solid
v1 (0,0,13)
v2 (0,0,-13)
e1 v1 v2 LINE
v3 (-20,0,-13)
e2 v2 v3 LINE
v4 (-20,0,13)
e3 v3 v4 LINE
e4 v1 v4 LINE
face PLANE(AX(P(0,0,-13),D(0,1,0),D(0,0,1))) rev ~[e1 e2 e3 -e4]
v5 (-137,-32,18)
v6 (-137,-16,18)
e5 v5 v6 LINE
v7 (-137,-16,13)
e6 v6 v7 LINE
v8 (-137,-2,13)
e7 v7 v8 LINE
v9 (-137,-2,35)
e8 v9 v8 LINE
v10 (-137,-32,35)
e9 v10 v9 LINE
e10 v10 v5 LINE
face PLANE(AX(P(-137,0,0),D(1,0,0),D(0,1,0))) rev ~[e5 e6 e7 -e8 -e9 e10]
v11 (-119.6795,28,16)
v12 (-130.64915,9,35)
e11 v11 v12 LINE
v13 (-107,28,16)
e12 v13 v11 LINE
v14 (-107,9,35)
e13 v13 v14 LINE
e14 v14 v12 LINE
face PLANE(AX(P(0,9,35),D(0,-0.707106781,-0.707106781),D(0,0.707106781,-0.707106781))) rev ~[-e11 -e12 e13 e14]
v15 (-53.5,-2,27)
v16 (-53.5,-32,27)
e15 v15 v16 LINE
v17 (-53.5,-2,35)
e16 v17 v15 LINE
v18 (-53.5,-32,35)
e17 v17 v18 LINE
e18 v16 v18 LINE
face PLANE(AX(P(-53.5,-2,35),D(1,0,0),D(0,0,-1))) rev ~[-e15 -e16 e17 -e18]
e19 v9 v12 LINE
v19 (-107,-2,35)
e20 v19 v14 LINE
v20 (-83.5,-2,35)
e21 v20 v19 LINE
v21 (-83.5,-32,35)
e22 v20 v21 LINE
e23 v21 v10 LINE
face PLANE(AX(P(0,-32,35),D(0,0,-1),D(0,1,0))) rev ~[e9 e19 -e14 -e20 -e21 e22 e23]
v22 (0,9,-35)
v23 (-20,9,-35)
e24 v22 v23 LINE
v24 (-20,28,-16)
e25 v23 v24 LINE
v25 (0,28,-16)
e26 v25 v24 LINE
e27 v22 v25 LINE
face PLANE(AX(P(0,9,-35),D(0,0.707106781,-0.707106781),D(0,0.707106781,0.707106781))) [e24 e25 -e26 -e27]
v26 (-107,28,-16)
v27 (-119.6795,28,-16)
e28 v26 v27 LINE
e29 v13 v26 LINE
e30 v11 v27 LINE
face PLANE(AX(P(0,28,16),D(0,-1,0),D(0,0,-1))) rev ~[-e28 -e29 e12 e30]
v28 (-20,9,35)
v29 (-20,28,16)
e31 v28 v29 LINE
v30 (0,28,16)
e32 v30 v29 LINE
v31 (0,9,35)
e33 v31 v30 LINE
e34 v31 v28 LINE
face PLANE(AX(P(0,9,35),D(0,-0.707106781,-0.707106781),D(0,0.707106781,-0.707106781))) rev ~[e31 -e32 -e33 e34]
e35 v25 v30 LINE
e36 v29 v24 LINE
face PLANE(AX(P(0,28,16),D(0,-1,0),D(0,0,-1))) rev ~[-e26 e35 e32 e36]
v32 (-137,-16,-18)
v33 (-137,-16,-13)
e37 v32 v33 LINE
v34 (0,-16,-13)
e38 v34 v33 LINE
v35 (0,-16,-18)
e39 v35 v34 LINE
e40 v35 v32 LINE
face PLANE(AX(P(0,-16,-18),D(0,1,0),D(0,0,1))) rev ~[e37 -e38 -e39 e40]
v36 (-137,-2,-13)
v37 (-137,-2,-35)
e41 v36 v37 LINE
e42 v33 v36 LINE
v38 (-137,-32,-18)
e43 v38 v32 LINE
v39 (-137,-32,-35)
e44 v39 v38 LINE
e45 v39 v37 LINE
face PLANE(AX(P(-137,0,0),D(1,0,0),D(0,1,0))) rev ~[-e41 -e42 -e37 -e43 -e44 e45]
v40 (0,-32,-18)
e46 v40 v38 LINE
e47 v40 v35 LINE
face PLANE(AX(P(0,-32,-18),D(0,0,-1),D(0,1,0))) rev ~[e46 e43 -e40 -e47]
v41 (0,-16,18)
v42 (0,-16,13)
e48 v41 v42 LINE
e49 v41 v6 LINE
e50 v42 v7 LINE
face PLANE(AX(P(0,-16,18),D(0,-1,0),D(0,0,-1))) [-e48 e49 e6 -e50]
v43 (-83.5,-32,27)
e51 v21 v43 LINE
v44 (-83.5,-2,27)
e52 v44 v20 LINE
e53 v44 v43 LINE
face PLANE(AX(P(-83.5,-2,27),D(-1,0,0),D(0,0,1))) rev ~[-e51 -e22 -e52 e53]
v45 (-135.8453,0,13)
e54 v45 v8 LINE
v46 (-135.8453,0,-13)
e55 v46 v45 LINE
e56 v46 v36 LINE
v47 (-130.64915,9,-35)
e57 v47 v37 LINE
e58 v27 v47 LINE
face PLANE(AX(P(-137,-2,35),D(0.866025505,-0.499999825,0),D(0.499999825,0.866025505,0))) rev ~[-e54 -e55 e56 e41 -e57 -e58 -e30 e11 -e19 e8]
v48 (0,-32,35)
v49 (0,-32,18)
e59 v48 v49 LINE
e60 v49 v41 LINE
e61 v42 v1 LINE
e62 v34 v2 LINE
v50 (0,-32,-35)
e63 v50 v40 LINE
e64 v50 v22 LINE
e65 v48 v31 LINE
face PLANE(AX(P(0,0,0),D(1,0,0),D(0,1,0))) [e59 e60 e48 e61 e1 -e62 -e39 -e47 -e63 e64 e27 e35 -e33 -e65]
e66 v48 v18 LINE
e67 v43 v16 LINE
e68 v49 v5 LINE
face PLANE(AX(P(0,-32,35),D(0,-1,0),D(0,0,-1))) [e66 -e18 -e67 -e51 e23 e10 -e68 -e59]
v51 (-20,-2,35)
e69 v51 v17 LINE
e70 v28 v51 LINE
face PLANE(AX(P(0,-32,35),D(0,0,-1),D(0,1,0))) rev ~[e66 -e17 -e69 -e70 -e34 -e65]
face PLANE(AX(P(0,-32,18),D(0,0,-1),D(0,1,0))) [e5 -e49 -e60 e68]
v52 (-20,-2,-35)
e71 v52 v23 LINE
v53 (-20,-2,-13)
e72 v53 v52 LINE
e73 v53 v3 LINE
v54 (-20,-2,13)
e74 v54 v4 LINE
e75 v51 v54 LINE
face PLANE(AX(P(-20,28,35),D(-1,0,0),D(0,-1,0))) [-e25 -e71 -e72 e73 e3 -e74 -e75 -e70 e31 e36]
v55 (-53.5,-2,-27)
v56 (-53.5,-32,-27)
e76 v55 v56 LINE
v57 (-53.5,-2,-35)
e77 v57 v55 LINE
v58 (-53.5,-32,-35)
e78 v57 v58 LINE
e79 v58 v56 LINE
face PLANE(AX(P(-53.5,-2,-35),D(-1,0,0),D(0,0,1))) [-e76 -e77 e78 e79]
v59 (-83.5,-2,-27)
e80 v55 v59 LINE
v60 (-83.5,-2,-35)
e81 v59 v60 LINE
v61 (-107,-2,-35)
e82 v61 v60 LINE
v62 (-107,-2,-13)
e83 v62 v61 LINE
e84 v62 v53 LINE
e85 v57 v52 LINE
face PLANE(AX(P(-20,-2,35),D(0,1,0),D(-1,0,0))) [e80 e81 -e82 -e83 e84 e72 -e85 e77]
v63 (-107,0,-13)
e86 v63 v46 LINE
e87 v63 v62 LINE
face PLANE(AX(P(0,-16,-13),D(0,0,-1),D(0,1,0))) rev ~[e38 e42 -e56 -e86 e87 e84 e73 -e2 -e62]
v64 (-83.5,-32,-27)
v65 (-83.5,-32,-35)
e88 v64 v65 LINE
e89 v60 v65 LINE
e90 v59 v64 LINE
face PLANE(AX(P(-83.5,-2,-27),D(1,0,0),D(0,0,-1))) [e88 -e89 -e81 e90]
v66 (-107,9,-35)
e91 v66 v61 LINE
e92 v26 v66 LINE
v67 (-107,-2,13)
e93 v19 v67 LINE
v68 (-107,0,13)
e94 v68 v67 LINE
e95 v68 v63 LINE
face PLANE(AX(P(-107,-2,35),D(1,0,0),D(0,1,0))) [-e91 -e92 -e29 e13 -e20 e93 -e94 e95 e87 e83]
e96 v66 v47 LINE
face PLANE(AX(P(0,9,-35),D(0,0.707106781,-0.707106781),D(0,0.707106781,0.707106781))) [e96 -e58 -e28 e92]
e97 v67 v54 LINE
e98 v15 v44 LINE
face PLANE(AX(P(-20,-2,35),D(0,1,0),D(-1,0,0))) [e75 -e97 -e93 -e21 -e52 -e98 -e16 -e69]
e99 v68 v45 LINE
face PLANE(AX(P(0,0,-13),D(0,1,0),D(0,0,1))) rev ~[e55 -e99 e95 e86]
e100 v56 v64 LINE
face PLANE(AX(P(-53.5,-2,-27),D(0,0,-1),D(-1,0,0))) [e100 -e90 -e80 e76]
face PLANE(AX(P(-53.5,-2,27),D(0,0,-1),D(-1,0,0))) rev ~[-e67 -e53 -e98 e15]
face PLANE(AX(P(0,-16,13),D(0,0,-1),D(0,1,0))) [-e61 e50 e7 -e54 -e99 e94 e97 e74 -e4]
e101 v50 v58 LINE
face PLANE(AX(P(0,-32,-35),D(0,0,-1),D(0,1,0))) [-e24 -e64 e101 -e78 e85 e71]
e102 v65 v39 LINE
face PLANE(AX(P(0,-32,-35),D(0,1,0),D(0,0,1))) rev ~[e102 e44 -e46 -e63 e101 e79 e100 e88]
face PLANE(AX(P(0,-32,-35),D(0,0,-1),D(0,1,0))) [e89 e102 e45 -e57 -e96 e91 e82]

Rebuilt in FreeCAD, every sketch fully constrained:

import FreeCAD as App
import Part
import Sketcher
Q = App.Units.Quantity

doc = App.newDocument("Part")
body = doc.addObject("PartDesign::Body", "Body")

# Sketch on YZ plane
sketch1 = body.newObject("Sketcher::SketchObject", "Sketch")
sketch1.AttachmentSupport = (doc.getObject("YZ_Plane"), [""])
sketch1.MapMode = "FlatFace"
sketch1.addGeometry(Part.LineSegment(App.Vector(9, 35, 0), App.Vector(-32, 35, 0)), False)
sketch1.addGeometry(Part.LineSegment(App.Vector(-32, 35, 0), App.Vector(-32, 18, 0)), False)
sketch1.addGeometry(Part.LineSegment(App.Vector(-32, 18, 0), App.Vector(-16, 18, 0)), False)
sketch1.addGeometry(Part.LineSegment(App.Vector(-16, 18, 0), App.Vector(-16, 13, 0)), False)
sketch1.addGeometry(Part.LineSegment(App.Vector(-16, 13, 0), App.Vector(0, 13, 0)), False)
sketch1.addGeometry(Part.LineSegment(App.Vector(0, 13, 0), App.Vector(0, -13, 0)), False)
sketch1.addGeometry(Part.LineSegment(App.Vector(0, -13, 0), App.Vector(-16, -13, 0)), False)
sketch1.addGeometry(Part.LineSegment(App.Vector(-16, -13, 0), App.Vector(-16, -18, 0)), False)
sketch1.addGeometry(Part.LineSegment(App.Vector(-16, -18, 0), App.Vector(-32, -18, 0)), False)
sketch1.addGeometry(Part.LineSegment(App.Vector(-32, -18, 0), App.Vector(-32, -35, 0)), False)
sketch1.addGeometry(Part.LineSegment(App.Vector(-32, -35, 0), App.Vector(9, -35, 0)), False)
sketch1.addGeometry(Part.LineSegment(App.Vector(9, -35, 0), App.Vector(28, -16, 0)), False)
sketch1.addGeometry(Part.LineSegment(App.Vector(28, -16, 0), App.Vector(28, 16, 0)), False)
sketch1.addGeometry(Part.LineSegment(App.Vector(28, 16, 0), App.Vector(9, 35, 0)), False)
sketch1.addConstraint(Sketcher.Constraint("Coincident", 0, 2, 1, 1))
sketch1.addConstraint(Sketcher.Constraint("Coincident", 1, 2, 2, 1))
sketch1.addConstraint(Sketcher.Constraint("Coincident", 2, 2, 3, 1))
sketch1.addConstraint(Sketcher.Constraint("Coincident", 3, 2, 4, 1))
sketch1.addConstraint(Sketcher.Constraint("Coincident", 4, 2, 5, 1))
sketch1.addConstraint(Sketcher.Constraint("Coincident", 5, 2, 6, 1))
sketch1.addConstraint(Sketcher.Constraint("Coincident", 6, 2, 7, 1))
sketch1.addConstraint(Sketcher.Constraint("Coincident", 7, 2, 8, 1))
sketch1.addConstraint(Sketcher.Constraint("Coincident", 8, 2, 9, 1))
sketch1.addConstraint(Sketcher.Constraint("Coincident", 9, 2, 10, 1))
sketch1.addConstraint(Sketcher.Constraint("Coincident", 10, 2, 11, 1))
sketch1.addConstraint(Sketcher.Constraint("Coincident", 11, 2, 12, 1))
sketch1.addConstraint(Sketcher.Constraint("Coincident", 12, 2, 13, 1))
sketch1.addConstraint(Sketcher.Constraint("Coincident", 13, 2, 0, 1))
sketch1.addConstraint(Sketcher.Constraint("Horizontal", 0))
sketch1.addConstraint(Sketcher.Constraint("Vertical", 1))
sketch1.addConstraint(Sketcher.Constraint("Horizontal", 2))
sketch1.addConstraint(Sketcher.Constraint("Vertical", 3))
sketch1.addConstraint(Sketcher.Constraint("Horizontal", 4))
sketch1.addConstraint(Sketcher.Constraint("Vertical", 5))
sketch1.addConstraint(Sketcher.Constraint("Horizontal", 6))
sketch1.addConstraint(Sketcher.Constraint("Vertical", 7))
sketch1.addConstraint(Sketcher.Constraint("Horizontal", 8))
sketch1.addConstraint(Sketcher.Constraint("Vertical", 9))
sketch1.addConstraint(Sketcher.Constraint("Horizontal", 10))
sketch1.addConstraint(Sketcher.Constraint("Vertical", 12))
sketch1.addConstraint(Sketcher.Constraint("Symmetric", 4, 2, 5, 2, -1, 1))
sketch1.addConstraint(Sketcher.Constraint("Symmetric", 2, 2, 7, 2, -1))
sketch1.addConstraint(Sketcher.Constraint("Symmetric", 0, 2, 9, 2, -1))
sketch1.addConstraint(Sketcher.Constraint("Perpendicular", 11, 13))
sketch1.addConstraint(Sketcher.Constraint("Vertical", 10, 2, 13, 2))
sketch1.addConstraint(Sketcher.Constraint("Equal", 2, 4))
sketch1.addConstraint(Sketcher.Constraint("Equal", 11, 13))
sketch1.addConstraint(Sketcher.Constraint("DistanceX", 2, 1, 2, 2, Q("16 mm")))
sketch1.addConstraint(Sketcher.Constraint("DistanceY", 5, 2, 5, 1, Q("26 mm")))
sketch1.addConstraint(Sketcher.Constraint("DistanceY", 12, 1, 12, 2, Q("32 mm")))
sketch1.addConstraint(Sketcher.Constraint("DistanceY", 7, 2, 2, 2, Q("36 mm")))
sketch1.addConstraint(Sketcher.Constraint("DistanceX", 10, 2, 11, 2, Q("19 mm")))
sketch1.addConstraint(Sketcher.Constraint("DistanceX", 0, 2, 0, 1, Q("41 mm")))
pad1 = body.newObject("PartDesign::Pad", "Pad")
pad1.Profile = sketch1
pad1.Length = 137
pad1.Reversed = True

# Sketch on XY plane
sketch2 = body.newObject("Sketcher::SketchObject", "Sketch001")
sketch2.AttachmentSupport = (doc.getObject("XY_Plane"), [""])
sketch2.MapMode = "FlatFace"
sketch2.AttachmentOffset = App.Placement(App.Vector(0, 0, 35), App.Rotation())
sketch2.addGeometry(Part.LineSegment(App.Vector(-137, 28, 0), App.Vector(-137, -2, 0)), False)
sketch2.addGeometry(Part.LineSegment(App.Vector(-137, -2, 0), App.Vector(-119.6795, 28, 0)), False)
sketch2.addGeometry(Part.LineSegment(App.Vector(-119.6795, 28, 0), App.Vector(-137, 28, 0)), False)
sketch2.addConstraint(Sketcher.Constraint("Coincident", 0, 2, 1, 1))
sketch2.addConstraint(Sketcher.Constraint("Coincident", 1, 2, 2, 1))
sketch2.addConstraint(Sketcher.Constraint("Coincident", 2, 2, 0, 1))
sketch2.addConstraint(Sketcher.Constraint("Vertical", 0))
sketch2.addConstraint(Sketcher.Constraint("Horizontal", 2))
sketch2.addConstraint(Sketcher.Constraint("DistanceY", 0, 2, 0, 1, Q("30 mm")))
sketch2.addConstraint(Sketcher.Constraint("Angle", 1, Q("60 deg")))
sketch2.addConstraint(Sketcher.Constraint("DistanceX", 0, 2, -1, 1, Q("137 mm")))
sketch2.addConstraint(Sketcher.Constraint("DistanceY", 0, 2, -1, 1, Q("2 mm")))
pocket1 = body.newObject("PartDesign::Pocket", "Pocket")
pocket1.Profile = sketch2
pocket1.Length = 137

# Sketch on XY plane
sketch3 = body.newObject("Sketcher::SketchObject", "Sketch002")
sketch3.AttachmentSupport = (doc.getObject("XY_Plane"), [""])
sketch3.MapMode = "FlatFace"
sketch3.AttachmentOffset = App.Placement(App.Vector(0, 0, 35), App.Rotation())
sketch3.addGeometry(Part.LineSegment(App.Vector(-20, -2, 0), App.Vector(-20, 28, 0)), False)
sketch3.addGeometry(Part.LineSegment(App.Vector(-20, 28, 0), App.Vector(-107, 28, 0)), False)
sketch3.addGeometry(Part.LineSegment(App.Vector(-107, 28, 0), App.Vector(-107, -2, 0)), False)
sketch3.addGeometry(Part.LineSegment(App.Vector(-107, -2, 0), App.Vector(-20, -2, 0)), False)
sketch3.addConstraint(Sketcher.Constraint("Coincident", 0, 2, 1, 1))
sketch3.addConstraint(Sketcher.Constraint("Coincident", 1, 2, 2, 1))
sketch3.addConstraint(Sketcher.Constraint("Coincident", 2, 2, 3, 1))
sketch3.addConstraint(Sketcher.Constraint("Coincident", 3, 2, 0, 1))
sketch3.addConstraint(Sketcher.Constraint("Vertical", 0))
sketch3.addConstraint(Sketcher.Constraint("Horizontal", 1))
sketch3.addConstraint(Sketcher.Constraint("Vertical", 2))
sketch3.addConstraint(Sketcher.Constraint("Horizontal", 3))
sketch3.addConstraint(Sketcher.Constraint("DistanceX", 1, 2, 1, 1, Q("87 mm")))
sketch3.addConstraint(Sketcher.Constraint("DistanceY", 0, 1, 0, 2, Q("30 mm")))
sketch3.addConstraint(Sketcher.Constraint("DistanceX", 0, 2, -1, 1, Q("20 mm")))
sketch3.addConstraint(Sketcher.Constraint("DistanceY", -1, 1, 0, 2, Q("28 mm")))
pocket2 = body.newObject("PartDesign::Pocket", "Pocket001")
pocket2.Profile = sketch3
pocket2.Length = 137

# Sketch on XZ plane
sketch4 = body.newObject("Sketcher::SketchObject", "Sketch003")
sketch4.AttachmentSupport = (doc.getObject("XZ_Plane"), [""])
sketch4.MapMode = "FlatFace"
sketch4.AttachmentOffset = App.Placement(App.Vector(0, 0, 2), App.Rotation())
sketch4.addGeometry(Part.LineSegment(App.Vector(-83.5, 35, 0), App.Vector(-53.5, 35, 0)), False)
sketch4.addGeometry(Part.LineSegment(App.Vector(-53.5, 35, 0), App.Vector(-53.5, 27, 0)), False)
sketch4.addGeometry(Part.LineSegment(App.Vector(-53.5, 27, 0), App.Vector(-83.5, 27, 0)), False)
sketch4.addGeometry(Part.LineSegment(App.Vector(-83.5, 27, 0), App.Vector(-83.5, 35, 0)), False)
sketch4.addGeometry(Part.LineSegment(App.Vector(-53.5, -27, 0), App.Vector(-53.5, -35, 0)), False)
sketch4.addGeometry(Part.LineSegment(App.Vector(-53.5, -35, 0), App.Vector(-83.5, -35, 0)), False)
sketch4.addGeometry(Part.LineSegment(App.Vector(-83.5, -35, 0), App.Vector(-83.5, -27, 0)), False)
sketch4.addGeometry(Part.LineSegment(App.Vector(-83.5, -27, 0), App.Vector(-53.5, -27, 0)), False)
sketch4.addConstraint(Sketcher.Constraint("Coincident", 0, 2, 1, 1))
sketch4.addConstraint(Sketcher.Constraint("Coincident", 1, 2, 2, 1))
sketch4.addConstraint(Sketcher.Constraint("Coincident", 2, 2, 3, 1))
sketch4.addConstraint(Sketcher.Constraint("Coincident", 3, 2, 0, 1))
sketch4.addConstraint(Sketcher.Constraint("Coincident", 4, 2, 5, 1))
sketch4.addConstraint(Sketcher.Constraint("Coincident", 5, 2, 6, 1))
sketch4.addConstraint(Sketcher.Constraint("Coincident", 6, 2, 7, 1))
sketch4.addConstraint(Sketcher.Constraint("Coincident", 7, 2, 4, 1))
sketch4.addConstraint(Sketcher.Constraint("Horizontal", 0))
sketch4.addConstraint(Sketcher.Constraint("Vertical", 1))
sketch4.addConstraint(Sketcher.Constraint("Horizontal", 2))
sketch4.addConstraint(Sketcher.Constraint("Vertical", 3))
sketch4.addConstraint(Sketcher.Constraint("Vertical", 4))
sketch4.addConstraint(Sketcher.Constraint("Horizontal", 5))
sketch4.addConstraint(Sketcher.Constraint("Vertical", 6))
sketch4.addConstraint(Sketcher.Constraint("Horizontal", 7))
sketch4.addConstraint(Sketcher.Constraint("Symmetric", 0, 2, 4, 2, -1))
sketch4.addConstraint(Sketcher.Constraint("Symmetric", 2, 2, 6, 2, -1))
sketch4.addConstraint(Sketcher.Constraint("DistanceX", 0, 1, 0, 2, Q("30 mm")))
sketch4.addConstraint(Sketcher.Constraint("DistanceY", 1, 2, 1, 1, Q("8 mm")))
sketch4.addConstraint(Sketcher.Constraint("DistanceX", 0, 2, -1, 1, Q("53.5 mm")))
sketch4.addConstraint(Sketcher.Constraint("DistanceY", -1, 1, 0, 2, Q("35 mm")))
pocket3 = body.newObject("PartDesign::Pocket", "Pocket002")
pocket3.Profile = sketch4
pocket3.Length = 137
pocket3.Reversed = True

doc.recompute()
